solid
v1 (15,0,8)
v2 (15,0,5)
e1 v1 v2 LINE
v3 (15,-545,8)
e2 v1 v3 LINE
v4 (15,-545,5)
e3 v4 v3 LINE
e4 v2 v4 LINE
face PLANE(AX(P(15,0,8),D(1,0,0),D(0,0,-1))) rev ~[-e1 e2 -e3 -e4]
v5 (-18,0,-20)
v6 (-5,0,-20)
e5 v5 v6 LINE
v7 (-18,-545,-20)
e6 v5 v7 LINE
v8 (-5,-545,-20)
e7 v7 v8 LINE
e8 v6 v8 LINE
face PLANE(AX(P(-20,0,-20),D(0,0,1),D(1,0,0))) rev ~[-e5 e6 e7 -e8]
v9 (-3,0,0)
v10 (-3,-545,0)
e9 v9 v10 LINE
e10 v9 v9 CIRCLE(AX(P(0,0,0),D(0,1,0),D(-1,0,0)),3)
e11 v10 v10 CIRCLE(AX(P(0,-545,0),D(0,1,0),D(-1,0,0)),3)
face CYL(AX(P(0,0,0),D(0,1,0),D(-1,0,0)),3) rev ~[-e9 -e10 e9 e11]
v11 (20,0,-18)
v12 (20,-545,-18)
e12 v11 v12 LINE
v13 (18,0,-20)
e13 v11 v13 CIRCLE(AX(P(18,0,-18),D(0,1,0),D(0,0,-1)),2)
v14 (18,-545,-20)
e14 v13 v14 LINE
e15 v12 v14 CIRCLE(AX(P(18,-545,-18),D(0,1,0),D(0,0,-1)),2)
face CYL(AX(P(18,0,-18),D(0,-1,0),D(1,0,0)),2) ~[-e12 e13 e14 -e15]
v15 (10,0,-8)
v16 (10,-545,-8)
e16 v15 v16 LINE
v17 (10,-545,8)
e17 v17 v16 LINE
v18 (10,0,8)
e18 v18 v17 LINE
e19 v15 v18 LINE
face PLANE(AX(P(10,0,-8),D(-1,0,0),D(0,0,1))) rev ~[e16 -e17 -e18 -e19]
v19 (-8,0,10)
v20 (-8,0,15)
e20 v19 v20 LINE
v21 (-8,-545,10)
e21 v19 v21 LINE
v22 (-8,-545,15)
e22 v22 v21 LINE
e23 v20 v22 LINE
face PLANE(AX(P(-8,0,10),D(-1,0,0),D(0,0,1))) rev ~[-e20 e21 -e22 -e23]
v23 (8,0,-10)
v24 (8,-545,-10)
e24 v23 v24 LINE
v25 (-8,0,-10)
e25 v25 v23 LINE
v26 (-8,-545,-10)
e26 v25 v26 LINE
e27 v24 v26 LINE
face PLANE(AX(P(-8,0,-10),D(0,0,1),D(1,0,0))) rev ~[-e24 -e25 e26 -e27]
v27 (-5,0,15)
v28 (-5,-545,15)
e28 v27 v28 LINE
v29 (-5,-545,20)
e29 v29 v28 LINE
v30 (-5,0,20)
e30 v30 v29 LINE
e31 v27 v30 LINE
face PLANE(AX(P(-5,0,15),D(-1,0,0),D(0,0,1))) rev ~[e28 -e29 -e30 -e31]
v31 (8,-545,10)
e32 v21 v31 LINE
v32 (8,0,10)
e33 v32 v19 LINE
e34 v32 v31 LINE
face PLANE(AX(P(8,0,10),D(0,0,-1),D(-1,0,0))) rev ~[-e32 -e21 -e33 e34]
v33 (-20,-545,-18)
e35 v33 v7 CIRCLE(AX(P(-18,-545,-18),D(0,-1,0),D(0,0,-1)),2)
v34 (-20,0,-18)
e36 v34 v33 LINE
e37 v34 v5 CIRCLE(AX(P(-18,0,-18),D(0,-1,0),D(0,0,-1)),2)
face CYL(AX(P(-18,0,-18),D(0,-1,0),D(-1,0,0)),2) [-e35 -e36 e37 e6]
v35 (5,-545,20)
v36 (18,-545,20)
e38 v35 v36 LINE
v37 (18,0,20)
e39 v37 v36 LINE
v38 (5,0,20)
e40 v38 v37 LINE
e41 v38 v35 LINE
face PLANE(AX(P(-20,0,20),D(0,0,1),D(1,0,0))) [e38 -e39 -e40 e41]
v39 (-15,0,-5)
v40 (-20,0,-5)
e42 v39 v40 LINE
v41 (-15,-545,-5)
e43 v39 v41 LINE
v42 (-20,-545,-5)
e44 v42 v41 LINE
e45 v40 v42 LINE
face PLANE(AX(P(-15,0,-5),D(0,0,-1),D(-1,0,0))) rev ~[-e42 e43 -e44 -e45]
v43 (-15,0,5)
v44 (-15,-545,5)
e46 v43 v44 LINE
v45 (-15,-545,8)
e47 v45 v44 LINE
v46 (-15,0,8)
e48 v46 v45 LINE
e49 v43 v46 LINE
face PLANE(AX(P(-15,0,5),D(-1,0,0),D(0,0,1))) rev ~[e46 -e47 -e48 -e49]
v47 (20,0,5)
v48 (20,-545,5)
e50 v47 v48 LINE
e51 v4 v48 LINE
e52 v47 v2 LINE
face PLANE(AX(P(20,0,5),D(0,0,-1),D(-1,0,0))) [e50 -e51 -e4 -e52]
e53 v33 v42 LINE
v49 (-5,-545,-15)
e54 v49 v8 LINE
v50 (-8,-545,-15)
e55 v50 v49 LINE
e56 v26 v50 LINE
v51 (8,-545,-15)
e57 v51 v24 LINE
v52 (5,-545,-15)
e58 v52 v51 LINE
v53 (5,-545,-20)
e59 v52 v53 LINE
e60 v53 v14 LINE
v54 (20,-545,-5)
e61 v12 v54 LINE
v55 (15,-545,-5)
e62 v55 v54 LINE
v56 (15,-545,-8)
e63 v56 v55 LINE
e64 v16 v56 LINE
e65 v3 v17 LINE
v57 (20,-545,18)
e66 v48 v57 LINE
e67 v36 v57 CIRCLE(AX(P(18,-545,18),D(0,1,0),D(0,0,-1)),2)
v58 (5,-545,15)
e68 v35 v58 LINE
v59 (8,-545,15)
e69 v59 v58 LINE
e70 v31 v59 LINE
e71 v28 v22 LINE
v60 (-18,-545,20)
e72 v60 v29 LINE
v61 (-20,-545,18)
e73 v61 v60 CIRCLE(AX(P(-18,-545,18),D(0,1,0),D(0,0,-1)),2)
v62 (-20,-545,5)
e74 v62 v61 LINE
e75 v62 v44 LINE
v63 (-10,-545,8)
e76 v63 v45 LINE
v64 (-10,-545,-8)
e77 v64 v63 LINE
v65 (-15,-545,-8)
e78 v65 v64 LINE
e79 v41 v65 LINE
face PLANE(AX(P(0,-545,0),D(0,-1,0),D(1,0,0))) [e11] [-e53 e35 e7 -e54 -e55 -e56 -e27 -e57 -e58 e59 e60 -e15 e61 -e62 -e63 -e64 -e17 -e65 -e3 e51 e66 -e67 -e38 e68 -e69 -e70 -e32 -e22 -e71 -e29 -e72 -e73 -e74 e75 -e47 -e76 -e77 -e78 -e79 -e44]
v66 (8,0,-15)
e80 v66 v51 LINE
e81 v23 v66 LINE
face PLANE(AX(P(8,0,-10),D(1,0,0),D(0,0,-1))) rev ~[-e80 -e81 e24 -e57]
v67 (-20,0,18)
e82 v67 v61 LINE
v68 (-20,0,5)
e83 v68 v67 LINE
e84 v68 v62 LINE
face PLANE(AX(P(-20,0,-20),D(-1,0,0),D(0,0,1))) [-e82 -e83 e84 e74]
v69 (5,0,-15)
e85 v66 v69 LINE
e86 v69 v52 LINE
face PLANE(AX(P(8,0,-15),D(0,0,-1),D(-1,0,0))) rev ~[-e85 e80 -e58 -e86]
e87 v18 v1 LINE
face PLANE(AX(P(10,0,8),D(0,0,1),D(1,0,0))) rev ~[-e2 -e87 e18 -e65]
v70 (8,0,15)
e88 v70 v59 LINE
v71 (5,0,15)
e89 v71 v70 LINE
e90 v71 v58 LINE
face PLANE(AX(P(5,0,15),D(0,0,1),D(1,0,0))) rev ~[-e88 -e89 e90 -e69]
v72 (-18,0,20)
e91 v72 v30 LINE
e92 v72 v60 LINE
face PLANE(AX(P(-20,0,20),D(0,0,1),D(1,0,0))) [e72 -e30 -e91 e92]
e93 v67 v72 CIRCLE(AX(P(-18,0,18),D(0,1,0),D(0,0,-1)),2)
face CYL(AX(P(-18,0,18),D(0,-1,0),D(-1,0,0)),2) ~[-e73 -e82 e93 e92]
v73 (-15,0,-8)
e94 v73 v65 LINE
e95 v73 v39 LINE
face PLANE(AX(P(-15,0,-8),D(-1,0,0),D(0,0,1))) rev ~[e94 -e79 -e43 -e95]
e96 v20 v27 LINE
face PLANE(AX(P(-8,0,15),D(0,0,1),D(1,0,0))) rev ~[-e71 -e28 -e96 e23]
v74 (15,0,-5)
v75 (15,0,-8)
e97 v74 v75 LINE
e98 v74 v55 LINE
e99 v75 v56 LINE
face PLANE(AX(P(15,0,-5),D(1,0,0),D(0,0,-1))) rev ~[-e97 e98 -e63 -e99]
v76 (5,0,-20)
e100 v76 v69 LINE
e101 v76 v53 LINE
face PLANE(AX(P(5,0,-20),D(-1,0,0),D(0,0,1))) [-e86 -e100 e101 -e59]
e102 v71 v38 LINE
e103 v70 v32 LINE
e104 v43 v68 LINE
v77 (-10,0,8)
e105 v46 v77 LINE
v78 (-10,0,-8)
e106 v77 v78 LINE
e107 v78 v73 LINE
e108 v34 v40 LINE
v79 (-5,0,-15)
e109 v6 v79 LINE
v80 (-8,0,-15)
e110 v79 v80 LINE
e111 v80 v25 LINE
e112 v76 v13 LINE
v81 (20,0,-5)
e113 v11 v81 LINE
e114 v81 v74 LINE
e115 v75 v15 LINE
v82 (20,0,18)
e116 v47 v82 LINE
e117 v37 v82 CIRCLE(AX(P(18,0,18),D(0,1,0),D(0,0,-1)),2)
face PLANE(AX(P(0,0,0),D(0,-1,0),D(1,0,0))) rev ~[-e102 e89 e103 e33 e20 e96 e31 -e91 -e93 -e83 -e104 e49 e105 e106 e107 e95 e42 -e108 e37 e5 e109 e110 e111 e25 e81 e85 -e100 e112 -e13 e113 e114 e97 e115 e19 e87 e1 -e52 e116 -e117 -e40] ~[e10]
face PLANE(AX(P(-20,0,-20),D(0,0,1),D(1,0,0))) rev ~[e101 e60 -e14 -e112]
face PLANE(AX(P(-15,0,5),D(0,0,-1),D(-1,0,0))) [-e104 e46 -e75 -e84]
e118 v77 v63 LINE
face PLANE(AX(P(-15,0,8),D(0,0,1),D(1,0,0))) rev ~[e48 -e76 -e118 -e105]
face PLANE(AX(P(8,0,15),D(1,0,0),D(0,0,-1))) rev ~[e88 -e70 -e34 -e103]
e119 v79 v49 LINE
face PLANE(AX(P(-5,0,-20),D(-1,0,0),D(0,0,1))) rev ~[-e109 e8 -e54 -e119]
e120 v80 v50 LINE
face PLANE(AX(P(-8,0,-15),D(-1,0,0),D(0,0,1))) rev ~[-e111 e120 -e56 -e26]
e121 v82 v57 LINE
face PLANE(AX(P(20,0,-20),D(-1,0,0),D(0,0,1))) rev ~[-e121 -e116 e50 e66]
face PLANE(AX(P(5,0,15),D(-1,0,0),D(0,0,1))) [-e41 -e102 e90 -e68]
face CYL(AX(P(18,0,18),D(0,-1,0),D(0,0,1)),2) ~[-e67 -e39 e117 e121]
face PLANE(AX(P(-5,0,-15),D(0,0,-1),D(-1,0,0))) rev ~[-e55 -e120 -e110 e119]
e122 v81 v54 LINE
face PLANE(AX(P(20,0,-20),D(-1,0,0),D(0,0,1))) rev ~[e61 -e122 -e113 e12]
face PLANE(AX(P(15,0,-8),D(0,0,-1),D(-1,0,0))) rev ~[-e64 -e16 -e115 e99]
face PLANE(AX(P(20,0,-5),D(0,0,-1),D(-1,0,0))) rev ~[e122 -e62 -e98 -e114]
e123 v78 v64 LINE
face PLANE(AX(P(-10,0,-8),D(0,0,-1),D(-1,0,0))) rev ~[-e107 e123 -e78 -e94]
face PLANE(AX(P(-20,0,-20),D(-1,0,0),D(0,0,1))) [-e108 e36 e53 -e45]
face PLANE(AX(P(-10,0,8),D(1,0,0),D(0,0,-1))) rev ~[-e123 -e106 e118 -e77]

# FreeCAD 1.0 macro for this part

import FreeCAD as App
import Part
import Sketcher
from FreeCAD import Vector


def edges_at(feature, points):
    """Names of the edges that pass closest to the given points."""
    edges = feature.Shape.Edges
    near = lambda p: min(range(len(edges)), key=lambda i: edges[i].distToShape(Part.Vertex(*p))[0])
    return sorted({f"Edge{near(p) + 1}" for p in points})


def add_polygon(sketch, points):
    """Adds a closed chain of lines whose ends are joined by coincident constraints."""
    first, n = sketch.GeometryCount, len(points)
    for a, b in zip(points, points[1:] + points[:1]):
        sketch.addGeometry(Part.LineSegment(App.Vector(*a, 0), App.Vector(*b, 0)), False)
    for i in range(n):
        sketch.addConstraint(Sketcher.Constraint("Coincident", first + i, 2, first + (i + 1) % n, 1))

doc = App.newDocument("Part")
body = doc.addObject("PartDesign::Body", "Body")

# Sketch on XZ plane
sketch1 = doc.addObject("Sketcher::SketchObject", "Sketch")
body.addObject(sketch1)
sketch1.AttachmentSupport = (doc.XZ_Plane, [""])
sketch1.MapMode = "FlatFace"
add_polygon(sketch1, [(-20, 20), (-20, -20), (20, -20), (20, 20)])  # lines 0-3
sketch1.addConstraint(Sketcher.Constraint("Vertical", 0))
sketch1.addConstraint(Sketcher.Constraint("Horizontal", 1))
sketch1.addConstraint(Sketcher.Constraint("Vertical", 2))
sketch1.addConstraint(Sketcher.Constraint("Horizontal", 3))
sketch1.addConstraint(Sketcher.Constraint("Symmetric", 0, 2, 2, 2, -1, 1))
sketch1.addConstraint(Sketcher.Constraint("Equal", 3, 0))
sketch1.addConstraint(Sketcher.Constraint("DistanceX", 1, 1, 1, 2, 40.0))
pad1 = doc.addObject("PartDesign::Pad", "Pad")
body.addObject(pad1)
pad1.Profile = sketch1
pad1.Length = 545

# Sketch on XZ plane
sketch2 = doc.addObject("Sketcher::SketchObject", "Sketch001")
body.addObject(sketch2)
sketch2.AttachmentSupport = (doc.XZ_Plane, [""])
sketch2.MapMode = "FlatFace"
add_polygon(sketch2, [(20, 5), (20, -5), (15, -5), (15, -8), (10, -8), (10, 8), (15, 8), (15, 5)])  # lines 0-7
add_polygon(sketch2, [(8, 15), (8, 10), (-8, 10), (-8, 15), (-5, 15), (-5, 20), (5, 20), (5, 15)])  # lines 8-15
add_polygon(sketch2, [(-15, 8), (-10, 8), (-10, -8), (-15, -8), (-15, -5), (-20, -5), (-20, 5), (-15, 5)])  # lines 16-23
sketch2.addGeometry(Part.Circle(Vector(0, 0, 0), Vector(0, 0, 1), 3), False)  # 24
add_polygon(sketch2, [(8, -15), (5, -15), (5, -20), (-5, -20), (-5, -15), (-8, -15), (-8, -10), (8, -10)])  # lines 25-32
sketch2.addConstraint(Sketcher.Constraint("Vertical", 0))
sketch2.addConstraint(Sketcher.Constraint("Horizontal", 1))
sketch2.addConstraint(Sketcher.Constraint("Vertical", 2))
sketch2.addConstraint(Sketcher.Constraint("Horizontal", 3))
sketch2.addConstraint(Sketcher.Constraint("Vertical", 4))
sketch2.addConstraint(Sketcher.Constraint("Horizontal", 5))
sketch2.addConstraint(Sketcher.Constraint("Vertical", 6))
sketch2.addConstraint(Sketcher.Constraint("Horizontal", 7))
sketch2.addConstraint(Sketcher.Constraint("Vertical", 8))
sketch2.addConstraint(Sketcher.Constraint("Horizontal", 9))
sketch2.addConstraint(Sketcher.Constraint("Vertical", 10))
sketch2.addConstraint(Sketcher.Constraint("Horizontal", 11))
sketch2.addConstraint(Sketcher.Constraint("Vertical", 12))
sketch2.addConstraint(Sketcher.Constraint("Horizontal", 13))
sketch2.addConstraint(Sketcher.Constraint("Vertical", 14))
sketch2.addConstraint(Sketcher.Constraint("Horizontal", 15))
sketch2.addConstraint(Sketcher.Constraint("Horizontal", 16))
sketch2.addConstraint(Sketcher.Constraint("Vertical", 17))
sketch2.addConstraint(Sketcher.Constraint("Horizontal", 18))
sketch2.addConstraint(Sketcher.Constraint("Vertical", 19))
sketch2.addConstraint(Sketcher.Constraint("Horizontal", 20))
sketch2.addConstraint(Sketcher.Constraint("Vertical", 21))
sketch2.addConstraint(Sketcher.Constraint("Horizontal", 22))
sketch2.addConstraint(Sketcher.Constraint("Vertical", 23))
sketch2.addConstraint(Sketcher.Constraint("Horizontal", 25))
sketch2.addConstraint(Sketcher.Constraint("Vertical", 26))
sketch2.addConstraint(Sketcher.Constraint("Horizontal", 27))
sketch2.addConstraint(Sketcher.Constraint("Vertical", 28))
sketch2.addConstraint(Sketcher.Constraint("Horizontal", 29))
sketch2.addConstraint(Sketcher.Constraint("Vertical", 30))
sketch2.addConstraint(Sketcher.Constraint("Horizontal", 31))
sketch2.addConstraint(Sketcher.Constraint("Vertical", 32))
sketch2.addConstraint(Sketcher.Constraint("Coincident", 24, 3, -1, 1))
sketch2.addConstraint(Sketcher.Constraint("Symmetric", 3, 2, 16, 2, -1, 1))
sketch2.addConstraint(Sketcher.Constraint("Symmetric", 5, 2, 18, 2, -1, 1))
sketch2.addConstraint(Sketcher.Constraint("Symmetric", 7, 2, 20, 2, -1, 1))
sketch2.addConstraint(Sketcher.Constraint("Symmetric", 1, 2, 22, 2, -1, 1))
sketch2.addConstraint(Sketcher.Constraint("Symmetric", 11, 2, 25, 2, -1, 1))
sketch2.addConstraint(Sketcher.Constraint("Symmetric", 13, 2, 27, 2, -1, 1))
sketch2.addConstraint(Sketcher.Constraint("Symmetric", 15, 2, 29, 2, -1, 1))
sketch2.addConstraint(Sketcher.Constraint("Symmetric", 9, 2, 31, 2, -1, 1))
sketch2.addConstraint(Sketcher.Constraint("Symmetric", 11, 2, 14, 2, -2))
sketch2.addConstraint(Sketcher.Constraint("Symmetric", 2, 2, 18, 2, -2))
sketch2.addConstraint(Sketcher.Constraint("Horizontal", 1, 2, 19, 2))
sketch2.addConstraint(Sketcher.Constraint("Vertical", 10, 2, 29, 2))
sketch2.addConstraint(Sketcher.Constraint("Equal", 1, 3))
sketch2.addConstraint(Sketcher.Constraint("Equal", 27, 0))
sketch2.addConstraint(Sketcher.Constraint("Equal", 29, 2))
sketch2.addConstraint(Sketcher.Constraint("Equal", 22, 8))
sketch2.addConstraint(Sketcher.Constraint("Equal", 10, 12))
sketch2.addConstraint(Sketcher.Constraint("Diameter", 24, 6.0))
sketch2.addConstraint(Sketcher.Constraint("DistanceX", 1, 2, 1, 1, 5.0))
sketch2.addConstraint(Sketcher.Constraint("DistanceX", 9, 2, 9, 1, 16.0))
sketch2.addConstraint(Sketcher.Constraint("DistanceX", 11, 1, 11, 2, 3.0))
sketch2.addConstraint(Sketcher.Constraint("DistanceX", -1, 1, 0, 2, 20.0))
sketch2.addConstraint(Sketcher.Constraint("DistanceY", -1, 1, 8, 2, 10.0))
pocket1 = doc.addObject("PartDesign::Pocket", "Pocket")
body.addObject(pocket1)
pocket1.Profile = sketch2
pocket1.Type = "ThroughAll"
pocket1.Reversed = True
doc.recompute()

fillet = doc.addObject("PartDesign::Fillet", "Fillet")
body.addObject(fillet)
fillet.Base = (pocket1, edges_at(pocket1, [
    (20, -272.5, 20),
    (-20, -272.5, 20),
    (20, -272.5, -20),
    (-20, -272.5, -20),
]))
fillet.Radius = 2

doc.recompute()
